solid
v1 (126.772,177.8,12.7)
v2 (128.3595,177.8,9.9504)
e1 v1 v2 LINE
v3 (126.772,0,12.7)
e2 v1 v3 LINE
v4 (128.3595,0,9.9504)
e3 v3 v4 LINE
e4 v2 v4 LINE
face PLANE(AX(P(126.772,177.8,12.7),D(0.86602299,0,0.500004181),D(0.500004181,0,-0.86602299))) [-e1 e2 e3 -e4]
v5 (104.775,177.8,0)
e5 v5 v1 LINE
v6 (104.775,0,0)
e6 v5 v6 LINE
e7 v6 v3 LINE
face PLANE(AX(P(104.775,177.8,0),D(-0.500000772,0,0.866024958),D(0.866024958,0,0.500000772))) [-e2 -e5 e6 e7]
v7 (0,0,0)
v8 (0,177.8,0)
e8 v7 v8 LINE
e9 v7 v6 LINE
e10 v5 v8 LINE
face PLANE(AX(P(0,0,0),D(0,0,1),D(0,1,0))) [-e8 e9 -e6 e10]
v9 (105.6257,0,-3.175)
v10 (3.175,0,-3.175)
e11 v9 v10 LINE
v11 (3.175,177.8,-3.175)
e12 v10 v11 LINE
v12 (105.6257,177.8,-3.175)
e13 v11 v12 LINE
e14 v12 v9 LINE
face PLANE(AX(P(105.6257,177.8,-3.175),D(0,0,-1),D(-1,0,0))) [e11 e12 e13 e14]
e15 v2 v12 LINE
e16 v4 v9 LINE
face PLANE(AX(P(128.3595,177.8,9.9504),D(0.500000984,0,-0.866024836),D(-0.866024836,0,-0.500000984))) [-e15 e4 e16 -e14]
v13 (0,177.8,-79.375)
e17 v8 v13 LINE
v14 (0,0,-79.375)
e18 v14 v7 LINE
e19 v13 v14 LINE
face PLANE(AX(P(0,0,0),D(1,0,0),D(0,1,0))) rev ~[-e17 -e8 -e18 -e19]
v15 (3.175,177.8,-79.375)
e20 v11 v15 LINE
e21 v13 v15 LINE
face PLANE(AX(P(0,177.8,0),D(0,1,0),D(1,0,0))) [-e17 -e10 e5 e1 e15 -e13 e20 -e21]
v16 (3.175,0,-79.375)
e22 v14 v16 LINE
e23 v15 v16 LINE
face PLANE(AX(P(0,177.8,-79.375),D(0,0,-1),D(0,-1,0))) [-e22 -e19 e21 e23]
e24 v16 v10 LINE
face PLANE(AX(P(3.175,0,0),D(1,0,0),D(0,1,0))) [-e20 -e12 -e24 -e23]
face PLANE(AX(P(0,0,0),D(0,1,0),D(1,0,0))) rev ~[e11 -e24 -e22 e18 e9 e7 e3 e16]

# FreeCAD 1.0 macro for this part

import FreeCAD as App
import Part
import Sketcher

V = App.Vector
Q = App.Units.Quantity


def add_polygon(sketch, points):
    """Adds a closed chain of lines whose ends are joined by coincident constraints."""
    first, n = sketch.GeometryCount, len(points)
    for a, b in zip(points, points[1:] + points[:1]):
        sketch.addGeometry(Part.LineSegment(App.Vector(*a, 0), App.Vector(*b, 0)), False)
    for i in range(n):
        sketch.addConstraint(Sketcher.Constraint("Coincident", first + i, 2, first + (i + 1) % n, 1))

doc = App.newDocument("Part")
body = doc.addObject("PartDesign::Body", "Body")

# Sketch on YZ plane
sketch1 = body.newObject("Sketcher::SketchObject", "Sketch")
sketch1.AttachmentSupport = (doc.getObject("YZ_Plane"), [""])
sketch1.MapMode = "FlatFace"
add_polygon(sketch1, [(178, 0), (0, 0), (0, -79), (178, -79)])  # lines 0-3
sketch1.addConstraint([
    Sketcher.Constraint("Horizontal", 0),
    Sketcher.Constraint("Vertical", 1),
    Sketcher.Constraint("Horizontal", 2),
    Sketcher.Constraint("Vertical", 3),
    Sketcher.Constraint("Coincident", 0, 2, -1, 1),
    Sketcher.Constraint("DistanceX", 0, 2, 0, 1, Q("7 in")),
    Sketcher.Constraint("DistanceY", 1, 2, 1, 1, Q("3.125 in")),
])
pad1 = body.newObject("PartDesign::Pad", "Pad")
pad1.Profile = sketch1
pad1.Length = Q("0.125 in")

# Sketch on YZ plane
sketch2 = body.newObject("Sketcher::SketchObject", "Sketch001")
sketch2.AttachmentSupport = (doc.getObject("YZ_Plane"), [""])
sketch2.MapMode = "FlatFace"
sketch2.AttachmentOffset = App.Placement(V(0, 0, 0.125 * 25.4), App.Rotation())
add_polygon(sketch2, [(177.8, -3.2), (177.8, 0), (0, 0), (0, -3.2)])  # lines 0-3
sketch2.addConstraint([
    Sketcher.Constraint("Vertical", 0),
    Sketcher.Constraint("Horizontal", 1),
    Sketcher.Constraint("Vertical", 2),
    Sketcher.Constraint("Horizontal", 3),
    Sketcher.Constraint("Coincident", 1, 2, -1, 1),
    Sketcher.Constraint("DistanceX", 1, 2, 1, 1, Q("7 in")),
    Sketcher.Constraint("DistanceY", 0, 1, 0, 2, Q("0.125 in")),
])
pad2 = body.newObject("PartDesign::Pad", "Pad001")
pad2.Profile = sketch2
pad2.Length = Q("4 in")

# Sketch on XZ plane
sketch3 = body.newObject("Sketcher::SketchObject", "Sketch002")
sketch3.AttachmentSupport = (doc.getObject("XZ_Plane"), [""])
sketch3.MapMode = "FlatFace"
sketch3.AttachmentOffset = App.Placement(V(0, 0, -7 * 25.4), App.Rotation())
add_polygon(sketch3, [(104.8, -3.2), (104.8, 0), (126.8, 12.7), (128.4, 10), (105.6, -3.2)])  # lines 0-4
sketch3.addConstraint([
    Sketcher.Constraint("Vertical", 0),
    Sketcher.Constraint("Horizontal", 4),
    Sketcher.Constraint("PointOnObject", 0, 2, -1),
    Sketcher.Constraint("Perpendicular", 1, 2),
    Sketcher.Constraint("Perpendicular", 2, 3),
    Sketcher.Constraint("Distance", 1, Q("1 in")),
    Sketcher.Constraint("Angle", 3, Q("-150 deg")),
    Sketcher.Constraint("DistanceY", 0, 1, 0, 2, Q("0.125 in")),
    Sketcher.Constraint("Distance", 2, Q("0.125 in")),
    Sketcher.Constraint("DistanceX", -1, 1, 0, 2, Q("4.125 in")),
])
pad3 = body.newObject("PartDesign::Pad", "Pad002")
pad3.Profile = sketch3
pad3.Length = Q("7 in")

doc.recompute()
